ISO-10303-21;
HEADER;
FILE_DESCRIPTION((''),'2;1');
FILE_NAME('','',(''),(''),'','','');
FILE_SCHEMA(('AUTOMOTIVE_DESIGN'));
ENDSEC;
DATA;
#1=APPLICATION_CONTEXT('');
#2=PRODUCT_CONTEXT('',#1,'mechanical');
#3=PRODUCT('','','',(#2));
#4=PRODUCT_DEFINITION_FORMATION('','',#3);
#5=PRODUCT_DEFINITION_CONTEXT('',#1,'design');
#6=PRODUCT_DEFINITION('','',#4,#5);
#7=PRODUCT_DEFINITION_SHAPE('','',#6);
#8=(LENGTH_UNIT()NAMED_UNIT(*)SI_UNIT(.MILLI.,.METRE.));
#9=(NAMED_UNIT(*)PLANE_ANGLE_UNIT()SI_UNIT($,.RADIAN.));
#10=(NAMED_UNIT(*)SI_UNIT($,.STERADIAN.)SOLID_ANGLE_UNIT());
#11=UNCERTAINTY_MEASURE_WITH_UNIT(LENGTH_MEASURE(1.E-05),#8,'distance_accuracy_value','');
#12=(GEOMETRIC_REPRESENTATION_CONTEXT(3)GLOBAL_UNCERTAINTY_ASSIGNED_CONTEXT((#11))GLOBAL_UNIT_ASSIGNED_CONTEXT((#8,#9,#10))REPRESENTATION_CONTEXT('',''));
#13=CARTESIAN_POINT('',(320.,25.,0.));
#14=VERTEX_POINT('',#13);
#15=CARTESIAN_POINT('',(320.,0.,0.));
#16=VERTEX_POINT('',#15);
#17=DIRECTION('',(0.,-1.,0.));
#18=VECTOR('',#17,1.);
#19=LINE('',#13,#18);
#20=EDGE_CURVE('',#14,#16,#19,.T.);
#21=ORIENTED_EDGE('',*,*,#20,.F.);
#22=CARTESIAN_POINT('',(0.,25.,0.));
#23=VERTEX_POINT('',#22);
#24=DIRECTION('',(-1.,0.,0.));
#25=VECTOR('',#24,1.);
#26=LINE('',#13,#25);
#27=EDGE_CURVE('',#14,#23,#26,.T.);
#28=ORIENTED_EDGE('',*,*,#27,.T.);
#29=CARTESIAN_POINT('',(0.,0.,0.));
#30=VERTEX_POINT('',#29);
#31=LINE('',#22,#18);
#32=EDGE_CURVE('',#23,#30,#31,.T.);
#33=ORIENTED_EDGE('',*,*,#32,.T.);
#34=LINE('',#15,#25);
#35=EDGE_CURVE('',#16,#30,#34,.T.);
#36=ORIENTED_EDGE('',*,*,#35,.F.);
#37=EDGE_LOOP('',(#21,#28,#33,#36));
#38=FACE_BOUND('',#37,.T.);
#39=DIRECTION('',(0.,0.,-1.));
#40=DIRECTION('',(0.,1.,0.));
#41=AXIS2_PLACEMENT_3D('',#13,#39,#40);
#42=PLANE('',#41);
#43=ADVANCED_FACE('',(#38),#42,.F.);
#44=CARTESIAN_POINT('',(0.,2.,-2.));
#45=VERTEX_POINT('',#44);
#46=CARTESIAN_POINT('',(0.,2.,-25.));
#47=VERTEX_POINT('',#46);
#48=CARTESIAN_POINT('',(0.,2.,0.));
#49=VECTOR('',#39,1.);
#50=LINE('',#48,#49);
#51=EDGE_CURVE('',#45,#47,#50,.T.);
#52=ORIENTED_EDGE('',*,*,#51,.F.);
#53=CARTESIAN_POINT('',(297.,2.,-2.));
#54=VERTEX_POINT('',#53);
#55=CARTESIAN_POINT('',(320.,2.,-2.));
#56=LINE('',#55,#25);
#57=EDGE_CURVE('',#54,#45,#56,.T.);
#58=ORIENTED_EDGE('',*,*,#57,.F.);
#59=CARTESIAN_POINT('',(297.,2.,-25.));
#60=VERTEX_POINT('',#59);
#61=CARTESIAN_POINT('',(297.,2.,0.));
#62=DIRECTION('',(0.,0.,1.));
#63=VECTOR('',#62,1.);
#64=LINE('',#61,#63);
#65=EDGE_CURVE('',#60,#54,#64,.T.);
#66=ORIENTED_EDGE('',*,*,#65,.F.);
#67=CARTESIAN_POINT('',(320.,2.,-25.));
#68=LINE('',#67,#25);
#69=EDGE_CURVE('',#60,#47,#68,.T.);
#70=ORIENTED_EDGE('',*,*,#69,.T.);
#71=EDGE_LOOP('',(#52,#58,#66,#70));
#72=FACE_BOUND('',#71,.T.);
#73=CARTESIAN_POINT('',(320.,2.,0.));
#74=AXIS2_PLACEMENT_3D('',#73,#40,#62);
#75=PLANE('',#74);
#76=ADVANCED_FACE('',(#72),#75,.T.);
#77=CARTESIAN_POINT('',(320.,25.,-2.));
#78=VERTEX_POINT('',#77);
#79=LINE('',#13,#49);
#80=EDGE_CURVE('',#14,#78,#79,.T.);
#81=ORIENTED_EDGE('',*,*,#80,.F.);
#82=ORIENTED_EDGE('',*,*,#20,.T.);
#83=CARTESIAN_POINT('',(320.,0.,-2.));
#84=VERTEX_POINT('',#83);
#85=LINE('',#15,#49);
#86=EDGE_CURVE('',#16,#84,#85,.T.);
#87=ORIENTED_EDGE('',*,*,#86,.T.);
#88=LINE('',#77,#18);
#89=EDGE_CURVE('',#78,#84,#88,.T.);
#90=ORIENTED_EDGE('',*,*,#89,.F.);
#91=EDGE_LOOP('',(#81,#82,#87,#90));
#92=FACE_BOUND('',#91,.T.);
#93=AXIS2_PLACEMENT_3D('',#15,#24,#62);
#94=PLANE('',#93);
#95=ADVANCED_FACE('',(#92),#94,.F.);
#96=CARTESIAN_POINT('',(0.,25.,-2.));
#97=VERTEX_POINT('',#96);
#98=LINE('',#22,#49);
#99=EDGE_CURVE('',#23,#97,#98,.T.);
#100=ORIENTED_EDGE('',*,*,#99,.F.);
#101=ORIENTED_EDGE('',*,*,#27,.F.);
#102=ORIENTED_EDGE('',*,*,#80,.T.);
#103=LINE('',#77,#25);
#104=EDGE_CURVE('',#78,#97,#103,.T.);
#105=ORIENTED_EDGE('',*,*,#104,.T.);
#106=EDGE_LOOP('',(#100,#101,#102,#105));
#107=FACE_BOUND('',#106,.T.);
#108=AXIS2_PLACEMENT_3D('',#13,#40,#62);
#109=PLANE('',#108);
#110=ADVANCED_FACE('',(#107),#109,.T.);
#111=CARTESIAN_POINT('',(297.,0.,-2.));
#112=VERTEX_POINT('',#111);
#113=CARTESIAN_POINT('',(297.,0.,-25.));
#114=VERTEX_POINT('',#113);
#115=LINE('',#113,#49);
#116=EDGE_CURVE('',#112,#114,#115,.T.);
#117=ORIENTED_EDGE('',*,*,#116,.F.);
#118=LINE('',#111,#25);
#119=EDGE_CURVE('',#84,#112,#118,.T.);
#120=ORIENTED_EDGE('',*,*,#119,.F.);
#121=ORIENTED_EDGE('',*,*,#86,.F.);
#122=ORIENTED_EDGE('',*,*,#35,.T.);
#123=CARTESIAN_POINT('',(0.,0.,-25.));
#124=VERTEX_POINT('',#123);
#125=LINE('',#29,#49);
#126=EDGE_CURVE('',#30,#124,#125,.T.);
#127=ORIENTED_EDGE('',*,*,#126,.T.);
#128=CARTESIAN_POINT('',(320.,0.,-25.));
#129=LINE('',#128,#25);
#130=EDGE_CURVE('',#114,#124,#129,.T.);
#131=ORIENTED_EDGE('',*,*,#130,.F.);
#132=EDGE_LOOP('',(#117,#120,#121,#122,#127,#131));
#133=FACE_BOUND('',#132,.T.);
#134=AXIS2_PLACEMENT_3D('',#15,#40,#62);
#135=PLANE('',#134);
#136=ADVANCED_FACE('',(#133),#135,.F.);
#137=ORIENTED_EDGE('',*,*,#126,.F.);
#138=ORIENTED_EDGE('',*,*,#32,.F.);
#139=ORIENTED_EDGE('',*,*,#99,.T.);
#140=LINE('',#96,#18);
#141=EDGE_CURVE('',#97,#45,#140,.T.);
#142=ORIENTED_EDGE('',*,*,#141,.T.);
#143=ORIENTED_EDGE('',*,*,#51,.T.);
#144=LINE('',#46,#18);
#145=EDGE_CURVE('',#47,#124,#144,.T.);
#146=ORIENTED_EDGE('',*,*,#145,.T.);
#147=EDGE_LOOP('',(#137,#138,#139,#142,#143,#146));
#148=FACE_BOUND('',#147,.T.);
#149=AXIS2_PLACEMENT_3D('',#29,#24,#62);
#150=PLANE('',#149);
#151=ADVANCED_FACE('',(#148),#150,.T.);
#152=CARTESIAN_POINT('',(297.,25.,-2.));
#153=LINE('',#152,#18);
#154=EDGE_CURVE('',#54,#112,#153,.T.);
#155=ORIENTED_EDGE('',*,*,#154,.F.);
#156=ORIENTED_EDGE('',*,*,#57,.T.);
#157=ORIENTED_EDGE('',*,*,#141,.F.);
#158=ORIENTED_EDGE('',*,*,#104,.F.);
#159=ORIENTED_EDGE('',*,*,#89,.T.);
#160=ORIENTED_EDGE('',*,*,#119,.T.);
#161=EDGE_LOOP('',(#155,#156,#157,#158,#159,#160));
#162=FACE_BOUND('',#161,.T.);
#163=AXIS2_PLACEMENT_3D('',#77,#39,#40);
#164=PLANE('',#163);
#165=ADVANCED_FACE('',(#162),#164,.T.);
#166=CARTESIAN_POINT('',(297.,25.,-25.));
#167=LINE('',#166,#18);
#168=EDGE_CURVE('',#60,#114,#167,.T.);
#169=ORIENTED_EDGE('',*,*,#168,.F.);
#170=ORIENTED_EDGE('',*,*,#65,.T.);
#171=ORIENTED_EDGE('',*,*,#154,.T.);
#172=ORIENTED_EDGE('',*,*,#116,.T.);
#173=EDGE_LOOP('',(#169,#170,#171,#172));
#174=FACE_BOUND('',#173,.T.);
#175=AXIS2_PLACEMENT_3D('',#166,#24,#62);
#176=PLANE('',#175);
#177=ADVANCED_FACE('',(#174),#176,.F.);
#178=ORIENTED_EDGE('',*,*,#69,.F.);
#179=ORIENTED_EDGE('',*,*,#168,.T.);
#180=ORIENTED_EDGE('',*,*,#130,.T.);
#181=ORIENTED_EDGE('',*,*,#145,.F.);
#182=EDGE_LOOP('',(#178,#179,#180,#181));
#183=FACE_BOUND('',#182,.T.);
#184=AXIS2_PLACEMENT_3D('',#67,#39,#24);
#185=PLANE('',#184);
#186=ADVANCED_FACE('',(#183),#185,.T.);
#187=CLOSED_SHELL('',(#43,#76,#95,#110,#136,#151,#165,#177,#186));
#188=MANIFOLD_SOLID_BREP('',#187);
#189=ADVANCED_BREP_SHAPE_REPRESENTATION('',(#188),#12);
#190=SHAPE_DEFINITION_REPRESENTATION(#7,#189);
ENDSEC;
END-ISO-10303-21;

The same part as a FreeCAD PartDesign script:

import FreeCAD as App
import Part
import Sketcher

V = App.Vector
Q = App.Units.Quantity

doc = App.newDocument("Part")
params = doc.addObject("Spreadsheet::Sheet", "Params")
for row, (alias, value) in enumerate([
    ("sketch1_width", "25 mm"),
    ("sketch1_width2", "2 mm"),
    ("pad1_length", "320 mm"),
    ("sketch2_width", "23 mm"),
], start=1):
    params.set(f"A{row}", alias)
    params.set(f"B{row}", "=" + value)
    params.setAlias(f"B{row}", alias)

body = doc.addObject("PartDesign::Body", "Body")

# Sketch on YZ plane
sketch1 = body.newObject("Sketcher::SketchObject", "Sketch")
sketch1.AttachmentSupport = (doc.getObject("YZ_Plane"), [""])
sketch1.MapMode = "FlatFace"
sketch1.addGeometry(Part.LineSegment(V(25, 0, 0), V(0, 0, 0)), False)
sketch1.addGeometry(Part.LineSegment(V(0, 0, 0), V(0, -25, 0)), False)
sketch1.addGeometry(Part.LineSegment(V(0, -25, 0), V(2, -25, 0)), False)
sketch1.addGeometry(Part.LineSegment(V(2, -25, 0), V(2, -2, 0)), False)
sketch1.addGeometry(Part.LineSegment(V(2, -2, 0), V(25, -2, 0)), False)
sketch1.addGeometry(Part.LineSegment(V(25, -2, 0), V(25, 0, 0)), False)
sketch1.addConstraint(Sketcher.Constraint("Coincident", 0, 2, 1, 1))
sketch1.addConstraint(Sketcher.Constraint("Coincident", 1, 2, 2, 1))
sketch1.addConstraint(Sketcher.Constraint("Coincident", 2, 2, 3, 1))
sketch1.addConstraint(Sketcher.Constraint("Coincident", 3, 2, 4, 1))
sketch1.addConstraint(Sketcher.Constraint("Coincident", 4, 2, 5, 1))
sketch1.addConstraint(Sketcher.Constraint("Coincident", 5, 2, 0, 1))
sketch1.addConstraint(Sketcher.Constraint("Horizontal", 0))
sketch1.addConstraint(Sketcher.Constraint("Vertical", 1))
sketch1.addConstraint(Sketcher.Constraint("Horizontal", 2))
sketch1.addConstraint(Sketcher.Constraint("Vertical", 3))
sketch1.addConstraint(Sketcher.Constraint("Horizontal", 4))
sketch1.addConstraint(Sketcher.Constraint("Vertical", 5))
sketch1.addConstraint(Sketcher.Constraint("Coincident", 0, 2, -1, 1))
sketch1.addConstraint(Sketcher.Constraint("Equal", 0, 1))
sketch1.addConstraint(Sketcher.Constraint("Equal", 4, 3))
sketch1.addConstraint(Sketcher.Constraint("DistanceX", 0, 2, 0, 1, Q("25 mm")))
sketch1.addConstraint(Sketcher.Constraint("DistanceX", 2, 1, 2, 2, Q("2 mm")))
sketch1.setExpression("Constraints[15]", "Params.sketch1_width")
sketch1.setExpression("Constraints[16]", "Params.sketch1_width2")
pad1 = body.newObject("PartDesign::Pad", "Pad")
pad1.Profile = sketch1
pad1.setExpression("Length", "Params.pad1_length")

# Sketch on XZ plane
sketch2 = body.newObject("Sketcher::SketchObject", "Sketch001")
sketch2.AttachmentSupport = (doc.getObject("XZ_Plane"), [""])
sketch2.MapMode = "FlatFace"
sketch2.addGeometry(Part.LineSegment(V(297, -2, 0), V(297, -25, 0)), False)
sketch2.addGeometry(Part.LineSegment(V(297, -25, 0), V(320, -25, 0)), False)
sketch2.addGeometry(Part.LineSegment(V(320, -25, 0), V(320, -2, 0)), False)
sketch2.addGeometry(Part.LineSegment(V(320, -2, 0), V(297, -2, 0)), False)
sketch2.addConstraint(Sketcher.Constraint("Coincident", 0, 2, 1, 1))
sketch2.addConstraint(Sketcher.Constraint("Coincident", 1, 2, 2, 1))
sketch2.addConstraint(Sketcher.Constraint("Coincident", 2, 2, 3, 1))
sketch2.addConstraint(Sketcher.Constraint("Coincident", 3, 2, 0, 1))
sketch2.addConstraint(Sketcher.Constraint("Vertical", 0))
sketch2.addConstraint(Sketcher.Constraint("Horizontal", 1))
sketch2.addConstraint(Sketcher.Constraint("Vertical", 2))
sketch2.addConstraint(Sketcher.Constraint("Horizontal", 3))
sketch2.addConstraint(Sketcher.Constraint("Equal", 3, 0))
sketch2.addConstraint(Sketcher.Constraint("DistanceX", 1, 1, 1, 2, Q("23 mm")))
sketch2.addConstraint(Sketcher.Constraint("DistanceX", -1, 1, 0, 2, Q("297 mm")))
sketch2.addConstraint(Sketcher.Constraint("DistanceY", 0, 2, -1, 1, Q("25 mm")))
sketch2.setExpression("Constraints[9]", "Params.sketch2_width")
pocket1 = body.newObject("PartDesign::Pocket", "Pocket")
pocket1.Profile = sketch2
pocket1.Type = "ThroughAll"

doc.recompute()
